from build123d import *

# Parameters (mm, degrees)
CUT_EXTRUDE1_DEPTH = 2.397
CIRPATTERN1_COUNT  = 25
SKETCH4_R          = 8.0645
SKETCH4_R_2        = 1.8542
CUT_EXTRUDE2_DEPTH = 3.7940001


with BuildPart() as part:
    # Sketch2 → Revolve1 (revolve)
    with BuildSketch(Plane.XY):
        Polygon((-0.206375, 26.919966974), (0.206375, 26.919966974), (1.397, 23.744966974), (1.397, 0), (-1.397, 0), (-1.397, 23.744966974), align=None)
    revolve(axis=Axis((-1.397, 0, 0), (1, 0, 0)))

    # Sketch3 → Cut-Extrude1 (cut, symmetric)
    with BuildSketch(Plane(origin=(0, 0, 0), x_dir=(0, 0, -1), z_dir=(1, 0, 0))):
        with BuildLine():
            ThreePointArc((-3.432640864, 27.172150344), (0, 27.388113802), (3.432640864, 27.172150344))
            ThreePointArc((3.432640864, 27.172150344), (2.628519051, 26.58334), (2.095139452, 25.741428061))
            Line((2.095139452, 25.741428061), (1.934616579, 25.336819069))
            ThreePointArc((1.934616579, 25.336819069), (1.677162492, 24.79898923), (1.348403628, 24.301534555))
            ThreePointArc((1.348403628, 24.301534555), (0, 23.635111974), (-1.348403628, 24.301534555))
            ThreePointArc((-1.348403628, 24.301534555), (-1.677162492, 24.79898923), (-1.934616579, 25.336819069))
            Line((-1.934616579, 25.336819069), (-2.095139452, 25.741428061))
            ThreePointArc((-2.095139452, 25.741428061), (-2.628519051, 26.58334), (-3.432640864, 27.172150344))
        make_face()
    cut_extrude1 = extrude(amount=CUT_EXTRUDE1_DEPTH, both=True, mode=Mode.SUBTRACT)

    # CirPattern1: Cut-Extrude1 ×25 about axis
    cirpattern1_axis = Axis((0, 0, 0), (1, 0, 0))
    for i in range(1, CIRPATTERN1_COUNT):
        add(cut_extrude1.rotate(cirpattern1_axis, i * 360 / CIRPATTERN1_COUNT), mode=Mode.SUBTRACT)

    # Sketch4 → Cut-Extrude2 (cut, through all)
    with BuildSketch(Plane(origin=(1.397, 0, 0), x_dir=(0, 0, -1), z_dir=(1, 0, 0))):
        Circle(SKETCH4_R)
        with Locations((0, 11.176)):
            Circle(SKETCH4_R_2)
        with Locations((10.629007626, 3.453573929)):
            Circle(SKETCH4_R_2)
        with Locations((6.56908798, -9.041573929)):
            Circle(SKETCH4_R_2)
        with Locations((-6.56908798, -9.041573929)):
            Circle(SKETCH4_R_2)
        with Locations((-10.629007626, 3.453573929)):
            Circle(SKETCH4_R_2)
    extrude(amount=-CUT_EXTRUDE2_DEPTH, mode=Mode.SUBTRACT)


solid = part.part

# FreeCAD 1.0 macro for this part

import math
import FreeCAD as App
import Part
import Sketcher
Q = App.Units.Quantity


def add_polygon(sketch, points):
    """Adds a closed chain of lines whose ends are joined by coincident constraints."""
    first, n = sketch.GeometryCount, len(points)
    for a, b in zip(points, points[1:] + points[:1]):
        sketch.addGeometry(Part.LineSegment(App.Vector(*a, 0), App.Vector(*b, 0)), False)
    for i in range(n):
        sketch.addConstraint(Sketcher.Constraint("Coincident", first + i, 2, first + (i + 1) % n, 1))

doc = App.newDocument("Part")
body = doc.addObject("PartDesign::Body", "Body")

sketch1 = body.newObject("Sketcher::SketchObject", "Sketch")
sketch1.AttachmentSupport = (doc.getObject("XY_Plane"), [""])
sketch1.MapMode = "FlatFace"
add_polygon(sketch1, [(0.21, 26.92), (-0.21, 26.92), (-1.4, 23.74), (-1.4, 0), (1.4, 0), (1.4, 23.74)])
sketch1.addConstraint([
    Sketcher.Constraint("Horizontal", 0),
    Sketcher.Constraint("Vertical", 2),
    Sketcher.Constraint("Horizontal", 3),
    Sketcher.Constraint("Vertical", 4),
    Sketcher.Constraint("Symmetric", 2, 2, 3, 2, -1, 1),
    Sketcher.Constraint("Horizontal", 1, 2, 4, 2),
    Sketcher.Constraint("Equal", 1, 5),
    Sketcher.Constraint("DistanceX", 3, 1, 3, 2, Q("0.11 in")),
    Sketcher.Constraint("DistanceX", 1, 2, 0, 2, Q("0.046875 in")),
    Sketcher.Constraint("DistanceY", 1, 2, 0, 2, Q("0.125 in")),
    Sketcher.Constraint("DistanceY", 2, 2, 2, 1, 23.744967),
])
revolution = body.newObject("PartDesign::Revolution", "Revolution")
revolution.Profile = sketch1
revolution.ReferenceAxis = (sketch1, ["H_Axis"])
revolution.Angle = 360

sketch2 = body.newObject("Sketcher::SketchObject", "Sketch001")
sketch2.AttachmentSupport = (doc.getObject("YZ_Plane"), [""])
sketch2.MapMode = "FlatFace"
sketch2.addGeometry([
    Part.ArcOfCircle(Part.Circle(App.Vector(0, 0, 0), App.Vector(0, 0, 1), 27.39), math.radians(-7.2), math.radians(7.2)),
    Part.ArcOfCircle(Part.Circle(App.Vector(24.75, 4.59, 0), App.Vector(0, 0, 1), 2.68), math.radians(-68), math.radians(-25)),
    Part.LineSegment(App.Vector(25.74, 2.1, 0), App.Vector(25.34, 1.93, 0)),
    Part.ArcOfCircle(Part.Circle(App.Vector(26.94, -2.1, 0), App.Vector(0, 0, 1), 4.34), math.radians(111.64), math.radians(127.4)),
    Part.ArcOfCircle(Part.Circle(App.Vector(25.33, 0, 0), App.Vector(0, 0, 1), 1.7), math.radians(127), math.radians(233)),
    Part.ArcOfCircle(Part.Circle(App.Vector(26.94, 2.1, 0), App.Vector(0, 0, 1), 4.34), math.radians(-127.4), math.radians(-111.64)),
    Part.LineSegment(App.Vector(25.34, -1.93, 0), App.Vector(25.74, -2.1, 0)),
    Part.ArcOfCircle(Part.Circle(App.Vector(24.75, -4.59, 0), App.Vector(0, 0, 1), 2.68), math.radians(25), math.radians(68)),
], False)
sketch2.addConstraint([
    Sketcher.Constraint("Coincident", 0, 2, 1, 2),
    Sketcher.Constraint("Tangent", 1, 1, 2, 1),
    Sketcher.Constraint("Tangent", 2, 2, 3, 1),
    Sketcher.Constraint("Tangent", 3, 2, 4, 1),
    Sketcher.Constraint("Tangent", 4, 2, 5, 1),
    Sketcher.Constraint("Tangent", 5, 2, 6, 1),
    Sketcher.Constraint("Tangent", 6, 2, 7, 2),
    Sketcher.Constraint("Coincident", 7, 1, 0, 1),
    Sketcher.Constraint("Coincident", 0, 3, -1, 1),
    Sketcher.Constraint("Equal", 3, 5),
    Sketcher.Constraint("Equal", 1, 7),
    Sketcher.Constraint("Symmetric", 3, 3, 5, 3, -1),
    Sketcher.Constraint("Symmetric", 1, 3, 7, 3, -1),
    Sketcher.Constraint("Angle", 2, Q("-158.36 deg")),
    Sketcher.Constraint("Radius", 0, 27.388114),
    Sketcher.Constraint("Radius", 1, 2.680104),
    Sketcher.Constraint("Radius", 3, 4.338955),
    Sketcher.Constraint("Radius", 4, 1.697355),
    Sketcher.Constraint("DistanceY", 1, 1, 0, 2, 1.337501),
    Sketcher.Constraint("Distance", 2, 0.435288),
    Sketcher.Constraint("DistanceX", -1, 1, 3, 3, 26.936911),
])
pocket1 = body.newObject("PartDesign::Pocket", "Pocket")
pocket1.Profile = sketch2
pocket1.Length = 4.794
pocket1.Midplane = True
doc.recompute()

polarpattern = body.newObject("PartDesign::PolarPattern", "PolarPattern")
polarpattern.Originals = [pocket1]
polarpattern.Axis = (doc.getObject("X_Axis"), [""])
polarpattern.Angle = 360
polarpattern.Occurrences = 25
body.Tip = polarpattern

sketch3 = body.newObject("Sketcher::SketchObject", "Sketch002")
sketch3.AttachmentSupport = (doc.getObject("YZ_Plane"), [""])
sketch3.MapMode = "FlatFace"
sketch3.AttachmentOffset = App.Placement(App.Vector(0, 0, 0.055 * 25.4), App.Rotation())
sketch3.addGeometry([
    Part.Circle(App.Vector(0, 0, 0), App.Vector(0, 0, 1), 8.1),
    Part.Circle(App.Vector(11.2, 0, 0), App.Vector(0, 0, 1), 1.9),
    Part.Circle(App.Vector(3.5, -10.6, 0), App.Vector(0, 0, 1), 1.9),
    Part.Circle(App.Vector(-9, -6.6, 0), App.Vector(0, 0, 1), 1.9),
    Part.Circle(App.Vector(-9, 6.6, 0), App.Vector(0, 0, 1), 1.9),
    Part.Circle(App.Vector(3.5, 10.6, 0), App.Vector(0, 0, 1), 1.9),
], False)
sketch3.addConstraint([
    Sketcher.Constraint("Coincident", 0, 3, -1, 1),
    Sketcher.Constraint("Equal", 1, 2),
    Sketcher.Constraint("Equal", 2, 3),
    Sketcher.Constraint("Equal", 3, 4),
    Sketcher.Constraint("Equal", 4, 5),
    Sketcher.Constraint("Symmetric", 3, 3, 4, 3, -1),
    Sketcher.Constraint("Symmetric", 2, 3, 5, 3, -1),
    Sketcher.Constraint("PointOnObject", 1, 3, -1),
    Sketcher.Constraint("Diameter", 0, Q("0.635 in")),
    Sketcher.Constraint("Diameter", 1, Q("0.146 in")),
    Sketcher.Constraint("DistanceX", -1, 1, 1, 3, Q("0.44 in")),
    Sketcher.Constraint("DistanceY", 2, 3, 3, 3, 4.05992),
    Sketcher.Constraint("DistanceX", -1, 1, 2, 3, 3.453574),
    Sketcher.Constraint("DistanceY", 2, 3, -1, 1, 10.629008),
    Sketcher.Constraint("DistanceX", 3, 3, -1, 1, 9.041574),
])
pocket2 = body.newObject("PartDesign::Pocket", "Pocket001")
pocket2.Profile = sketch3
pocket2.Type = "ThroughAll"

doc.recompute()
